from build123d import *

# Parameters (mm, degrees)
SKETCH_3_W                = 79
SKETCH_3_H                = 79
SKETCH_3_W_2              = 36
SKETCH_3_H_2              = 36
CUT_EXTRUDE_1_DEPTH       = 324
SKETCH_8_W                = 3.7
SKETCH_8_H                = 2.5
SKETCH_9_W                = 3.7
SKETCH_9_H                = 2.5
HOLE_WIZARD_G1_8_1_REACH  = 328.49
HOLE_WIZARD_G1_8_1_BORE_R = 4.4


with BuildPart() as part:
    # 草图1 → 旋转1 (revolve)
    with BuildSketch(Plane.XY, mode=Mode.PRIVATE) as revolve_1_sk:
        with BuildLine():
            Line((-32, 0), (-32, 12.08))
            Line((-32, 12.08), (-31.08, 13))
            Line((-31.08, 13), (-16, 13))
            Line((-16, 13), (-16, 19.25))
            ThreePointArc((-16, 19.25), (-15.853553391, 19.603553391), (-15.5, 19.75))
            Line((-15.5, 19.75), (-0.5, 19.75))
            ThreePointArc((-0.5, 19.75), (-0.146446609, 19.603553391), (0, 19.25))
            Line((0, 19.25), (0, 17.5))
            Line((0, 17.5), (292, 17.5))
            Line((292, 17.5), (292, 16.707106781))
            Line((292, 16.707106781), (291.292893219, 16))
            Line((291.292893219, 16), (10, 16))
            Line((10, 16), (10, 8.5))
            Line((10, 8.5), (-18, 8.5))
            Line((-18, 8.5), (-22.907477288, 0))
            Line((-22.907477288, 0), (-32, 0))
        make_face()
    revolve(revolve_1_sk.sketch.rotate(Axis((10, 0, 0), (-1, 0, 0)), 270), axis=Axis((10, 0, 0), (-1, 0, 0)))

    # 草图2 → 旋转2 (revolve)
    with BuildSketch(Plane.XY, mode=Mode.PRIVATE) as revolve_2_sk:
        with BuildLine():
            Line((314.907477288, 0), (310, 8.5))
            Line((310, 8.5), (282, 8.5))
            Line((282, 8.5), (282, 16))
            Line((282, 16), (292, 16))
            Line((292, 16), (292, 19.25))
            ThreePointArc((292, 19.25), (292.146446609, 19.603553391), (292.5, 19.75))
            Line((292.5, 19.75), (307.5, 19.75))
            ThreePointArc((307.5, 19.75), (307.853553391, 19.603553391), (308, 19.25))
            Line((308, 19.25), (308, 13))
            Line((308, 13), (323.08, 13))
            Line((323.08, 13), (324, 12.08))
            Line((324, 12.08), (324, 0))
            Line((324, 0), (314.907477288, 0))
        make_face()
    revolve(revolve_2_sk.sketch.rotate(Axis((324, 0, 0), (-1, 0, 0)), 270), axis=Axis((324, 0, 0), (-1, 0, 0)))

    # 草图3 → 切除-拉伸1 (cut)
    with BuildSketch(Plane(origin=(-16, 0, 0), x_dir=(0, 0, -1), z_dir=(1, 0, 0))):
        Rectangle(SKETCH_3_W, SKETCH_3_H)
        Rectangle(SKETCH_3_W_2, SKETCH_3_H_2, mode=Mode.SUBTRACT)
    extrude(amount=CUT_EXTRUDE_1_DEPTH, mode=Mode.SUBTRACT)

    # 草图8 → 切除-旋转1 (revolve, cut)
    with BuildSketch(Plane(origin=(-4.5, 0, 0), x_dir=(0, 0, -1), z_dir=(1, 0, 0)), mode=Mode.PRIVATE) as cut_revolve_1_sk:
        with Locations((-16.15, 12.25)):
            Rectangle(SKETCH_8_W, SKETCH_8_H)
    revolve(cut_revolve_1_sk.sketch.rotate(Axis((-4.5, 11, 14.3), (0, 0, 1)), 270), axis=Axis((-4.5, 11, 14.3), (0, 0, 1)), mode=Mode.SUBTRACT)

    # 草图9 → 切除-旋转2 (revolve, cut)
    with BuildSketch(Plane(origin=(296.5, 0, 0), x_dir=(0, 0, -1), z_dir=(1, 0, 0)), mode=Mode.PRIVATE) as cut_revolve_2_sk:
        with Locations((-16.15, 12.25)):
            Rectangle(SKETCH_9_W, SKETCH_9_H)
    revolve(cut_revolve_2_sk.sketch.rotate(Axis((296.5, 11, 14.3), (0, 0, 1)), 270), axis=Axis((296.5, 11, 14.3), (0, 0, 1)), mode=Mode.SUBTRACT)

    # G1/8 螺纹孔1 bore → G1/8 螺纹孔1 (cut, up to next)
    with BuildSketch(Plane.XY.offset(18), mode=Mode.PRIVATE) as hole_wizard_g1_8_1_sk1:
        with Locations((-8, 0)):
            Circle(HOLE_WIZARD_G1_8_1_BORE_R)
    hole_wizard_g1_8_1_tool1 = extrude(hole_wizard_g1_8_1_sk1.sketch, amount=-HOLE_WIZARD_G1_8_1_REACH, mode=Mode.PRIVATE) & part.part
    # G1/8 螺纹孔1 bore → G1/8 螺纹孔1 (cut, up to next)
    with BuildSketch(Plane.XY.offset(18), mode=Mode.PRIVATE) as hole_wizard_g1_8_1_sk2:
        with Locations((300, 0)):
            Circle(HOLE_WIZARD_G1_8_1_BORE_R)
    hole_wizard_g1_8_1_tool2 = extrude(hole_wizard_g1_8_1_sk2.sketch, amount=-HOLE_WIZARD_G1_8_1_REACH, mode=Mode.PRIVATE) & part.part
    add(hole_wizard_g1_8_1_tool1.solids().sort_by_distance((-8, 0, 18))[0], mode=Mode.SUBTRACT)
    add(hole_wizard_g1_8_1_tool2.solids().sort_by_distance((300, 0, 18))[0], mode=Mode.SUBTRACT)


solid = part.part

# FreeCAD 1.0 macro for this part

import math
import FreeCAD as App
import Part
import Sketcher
from FreeCAD import Vector
Q = App.Units.Quantity

doc = App.newDocument("Part")
params = doc.addObject("Spreadsheet::Sheet", "Params")
for row, (alias, value) in enumerate([
    ("sketch1_radius", "0.5 mm"),
    ("sketch1_width", "28 mm"),
    ("sketch1_width2", "292 mm"),
    ("sketch1_width3", "15 mm"),
    ("sketch1_length", "1 mm"),
    ("revolution_angle", "360 deg"),
    ("sketch2_radius", "0.5 mm"),
    ("sketch2_width", "15 mm"),
    ("sketch2_width2", "10 mm"),
    ("sketch2_width3", "28 mm"),
    ("sketch2_height", "7.5 mm"),
    ("revolution2_angle", "360 deg"),
    ("sketch3_width", "79 mm"),
    ("sketch3_width2", "36 mm"),
    ("pocket1_length", "324 mm"),
    ("sketch4_width", "2.5 mm"),
    ("sketch4_height", "3.7 mm"),
    ("groove_angle", "360 deg"),
    ("sketch5_width", "2.5 mm"),
    ("sketch5_height", "3.7 mm"),
    ("groove2_angle", "360 deg"),
    ("sketch6_diameter", "8.8 mm"),
    ("sketch7_diameter", "8.8 mm"),
], start=1):
    params.set(f"A{row}", alias)
    params.set(f"B{row}", "=" + value)
    params.setAlias(f"B{row}", alias)

body = doc.addObject("PartDesign::Body", "Body")

# Sketch on XY plane
sketch1 = body.newObject("Sketcher::SketchObject", "Sketch")
sketch1.AttachmentSupport = (doc.getObject("XY_Plane"), [""])
sketch1.MapMode = "FlatFace"
sketch1.addGeometry(Part.LineSegment(Vector(-32, 12.08, 0), Vector(-32, 0, 0)), False)
sketch1.addGeometry(Part.LineSegment(Vector(-32, 0, 0), Vector(-22.91, 0, 0)), False)
sketch1.addGeometry(Part.LineSegment(Vector(-22.91, 0, 0), Vector(-18, 8.5, 0)), False)
sketch1.addGeometry(Part.LineSegment(Vector(-18, 8.5, 0), Vector(10, 8.5, 0)), False)
sketch1.addGeometry(Part.LineSegment(Vector(10, 8.5, 0), Vector(10, 16, 0)), False)
sketch1.addGeometry(Part.LineSegment(Vector(10, 16, 0), Vector(291.29, 16, 0)), False)
sketch1.addGeometry(Part.LineSegment(Vector(291.29, 16, 0), Vector(292, 16.71, 0)), False)
sketch1.addGeometry(Part.LineSegment(Vector(292, 16.71, 0), Vector(292, 17.5, 0)), False)
sketch1.addGeometry(Part.LineSegment(Vector(292, 17.5, 0), Vector(0, 17.5, 0)), False)
sketch1.addGeometry(Part.LineSegment(Vector(0, 17.5, 0), Vector(0, 19.25, 0)), False)
sketch1.addGeometry(Part.ArcOfCircle(Part.Circle(Vector(-0.5, 19.25, 0), Vector(0, 0, 1), 0.5), math.radians(0), math.radians(90)), False)
sketch1.addGeometry(Part.LineSegment(Vector(-0.5, 19.75, 0), Vector(-15.5, 19.75, 0)), False)
sketch1.addGeometry(Part.ArcOfCircle(Part.Circle(Vector(-15.5, 19.25, 0), Vector(0, 0, 1), 0.5), math.radians(90), math.radians(180)), False)
sketch1.addGeometry(Part.LineSegment(Vector(-16, 19.25, 0), Vector(-16, 13, 0)), False)
sketch1.addGeometry(Part.LineSegment(Vector(-16, 13, 0), Vector(-31.08, 13, 0)), False)
sketch1.addGeometry(Part.LineSegment(Vector(-31.08, 13, 0), Vector(-32, 12.08, 0)), False)
sketch1.addConstraint(Sketcher.Constraint("Coincident", 0, 2, 1, 1))
sketch1.addConstraint(Sketcher.Constraint("Coincident", 1, 2, 2, 1))
sketch1.addConstraint(Sketcher.Constraint("Coincident", 2, 2, 3, 1))
sketch1.addConstraint(Sketcher.Constraint("Coincident", 3, 2, 4, 1))
sketch1.addConstraint(Sketcher.Constraint("Coincident", 4, 2, 5, 1))
sketch1.addConstraint(Sketcher.Constraint("Coincident", 5, 2, 6, 1))
sketch1.addConstraint(Sketcher.Constraint("Coincident", 6, 2, 7, 1))
sketch1.addConstraint(Sketcher.Constraint("Coincident", 7, 2, 8, 1))
sketch1.addConstraint(Sketcher.Constraint("Coincident", 8, 2, 9, 1))
sketch1.addConstraint(Sketcher.Constraint("Tangent", 9, 2, 10, 1))
sketch1.addConstraint(Sketcher.Constraint("Tangent", 10, 2, 11, 1))
sketch1.addConstraint(Sketcher.Constraint("Tangent", 11, 2, 12, 1))
sketch1.addConstraint(Sketcher.Constraint("Tangent", 12, 2, 13, 1))
sketch1.addConstraint(Sketcher.Constraint("Coincident", 13, 2, 14, 1))
sketch1.addConstraint(Sketcher.Constraint("Coincident", 14, 2, 15, 1))
sketch1.addConstraint(Sketcher.Constraint("Coincident", 15, 2, 0, 1))
sketch1.addConstraint(Sketcher.Constraint("Vertical", 0))
sketch1.addConstraint(Sketcher.Constraint("Horizontal", 1))
sketch1.addConstraint(Sketcher.Constraint("Horizontal", 3))
sketch1.addConstraint(Sketcher.Constraint("Vertical", 4))
sketch1.addConstraint(Sketcher.Constraint("Horizontal", 5))
sketch1.addConstraint(Sketcher.Constraint("Vertical", 7))
sketch1.addConstraint(Sketcher.Constraint("Horizontal", 8))
sketch1.addConstraint(Sketcher.Constraint("Vertical", 9))
sketch1.addConstraint(Sketcher.Constraint("Horizontal", 11))
sketch1.addConstraint(Sketcher.Constraint("Vertical", 13))
sketch1.addConstraint(Sketcher.Constraint("Horizontal", 14))
sketch1.addConstraint(Sketcher.Constraint("Equal", 10, 12))
sketch1.addConstraint(Sketcher.Constraint("PointOnObject", 0, 2, -1))
sketch1.addConstraint(Sketcher.Constraint("PointOnObject", 8, 2, -2))
sketch1.addConstraint(Sketcher.Constraint("Parallel", 6, 15))
sketch1.addConstraint(Sketcher.Constraint("Radius", 10, 0.5))
sketch1.addConstraint(Sketcher.Constraint("DistanceX", 3, 1, 3, 2, 28.0))
sketch1.addConstraint(Sketcher.Constraint("DistanceX", 8, 2, 8, 1, 292.0))
sketch1.addConstraint(Sketcher.Constraint("DistanceX", 11, 2, 11, 1, 15.0))
sketch1.addConstraint(Sketcher.Constraint("Angle", 2, Q("60 deg")))
sketch1.addConstraint(Sketcher.Constraint("Angle", 6, Q("45 deg")))
sketch1.addConstraint(Sketcher.Constraint("Distance", 6, 1.0))
sketch1.addConstraint(Sketcher.Constraint("DistanceY", 4, 1, 4, 2, 7.5))
sketch1.addConstraint(Sketcher.Constraint("DistanceX", 0, 2, -1, 1, 32.0))
sketch1.addConstraint(Sketcher.Constraint("DistanceX", 2, 2, -1, 1, 18.0))
sketch1.addConstraint(Sketcher.Constraint("DistanceY", -1, 1, 4, 2, 16.0))
sketch1.addConstraint(Sketcher.Constraint("DistanceY", -1, 1, 13, 2, 13.0))
sketch1.addConstraint(Sketcher.Constraint("DistanceY", 3, 2, 7, 2, 9.0))
sketch1.addConstraint(Sketcher.Constraint("DistanceX", 14, 2, 14, 1, 15.08))
sketch1.addConstraint(Sketcher.Constraint("DistanceY", 9, 1, 9, 2, 1.75))
sketch1.setExpression("Constraints[31]", "Params.sketch1_radius")
sketch1.setExpression("Constraints[32]", "Params.sketch1_width")
sketch1.setExpression("Constraints[33]", "Params.sketch1_width2")
sketch1.setExpression("Constraints[34]", "Params.sketch1_width3")
sketch1.setExpression("Constraints[37]", "Params.sketch1_length")
revolution = body.newObject("PartDesign::Revolution", "Revolution")
revolution.Profile = sketch1
revolution.ReferenceAxis = (sketch1, ["H_Axis"])
revolution.setExpression("Angle", "Params.revolution_angle")

# Sketch on XY plane
sketch2 = body.newObject("Sketcher::SketchObject", "Sketch001")
sketch2.AttachmentSupport = (doc.getObject("XY_Plane"), [""])
sketch2.MapMode = "FlatFace"
sketch2.addGeometry(Part.LineSegment(Vector(310, 8.5, 0), Vector(314.91, 0, 0)), False)
sketch2.addGeometry(Part.LineSegment(Vector(314.91, 0, 0), Vector(324, 0, 0)), False)
sketch2.addGeometry(Part.LineSegment(Vector(324, 0, 0), Vector(324, 12.08, 0)), False)
sketch2.addGeometry(Part.LineSegment(Vector(324, 12.08, 0), Vector(323.08, 13, 0)), False)
sketch2.addGeometry(Part.LineSegment(Vector(323.08, 13, 0), Vector(308, 13, 0)), False)
sketch2.addGeometry(Part.LineSegment(Vector(308, 13, 0), Vector(308, 19.25, 0)), False)
sketch2.addGeometry(Part.ArcOfCircle(Part.Circle(Vector(307.5, 19.25, 0), Vector(0, 0, 1), 0.5), math.radians(0), math.radians(90)), False)
sketch2.addGeometry(Part.LineSegment(Vector(307.5, 19.75, 0), Vector(292.5, 19.75, 0)), False)
sketch2.addGeometry(Part.ArcOfCircle(Part.Circle(Vector(292.5, 19.25, 0), Vector(0, 0, 1), 0.5), math.radians(90), math.radians(180)), False)
sketch2.addGeometry(Part.LineSegment(Vector(292, 19.25, 0), Vector(292, 16, 0)), False)
sketch2.addGeometry(Part.LineSegment(Vector(292, 16, 0), Vector(282, 16, 0)), False)
sketch2.addGeometry(Part.LineSegment(Vector(282, 16, 0), Vector(282, 8.5, 0)), False)
sketch2.addGeometry(Part.LineSegment(Vector(282, 8.5, 0), Vector(310, 8.5, 0)), False)
sketch2.addConstraint(Sketcher.Constraint("Coincident", 0, 2, 1, 1))
sketch2.addConstraint(Sketcher.Constraint("Coincident", 1, 2, 2, 1))
sketch2.addConstraint(Sketcher.Constraint("Coincident", 2, 2, 3, 1))
sketch2.addConstraint(Sketcher.Constraint("Coincident", 3, 2, 4, 1))
sketch2.addConstraint(Sketcher.Constraint("Coincident", 4, 2, 5, 1))
sketch2.addConstraint(Sketcher.Constraint("Tangent", 5, 2, 6, 1))
sketch2.addConstraint(Sketcher.Constraint("Tangent", 6, 2, 7, 1))
sketch2.addConstraint(Sketcher.Constraint("Tangent", 7, 2, 8, 1))
sketch2.addConstraint(Sketcher.Constraint("Tangent", 8, 2, 9, 1))
sketch2.addConstraint(Sketcher.Constraint("Coincident", 9, 2, 10, 1))
sketch2.addConstraint(Sketcher.Constraint("Coincident", 10, 2, 11, 1))
sketch2.addConstraint(Sketcher.Constraint("Coincident", 11, 2, 12, 1))
sketch2.addConstraint(Sketcher.Constraint("Coincident", 12, 2, 0, 1))
sketch2.addConstraint(Sketcher.Constraint("Horizontal", 1))
sketch2.addConstraint(Sketcher.Constraint("Vertical", 2))
sketch2.addConstraint(Sketcher.Constraint("Horizontal", 4))
sketch2.addConstraint(Sketcher.Constraint("Vertical", 5))
sketch2.addConstraint(Sketcher.Constraint("Horizontal", 7))
sketch2.addConstraint(Sketcher.Constraint("Vertical", 9))
sketch2.addConstraint(Sketcher.Constraint("Horizontal", 10))
sketch2.addConstraint(Sketcher.Constraint("Vertical", 11))
sketch2.addConstraint(Sketcher.Constraint("Horizontal", 12))
sketch2.addConstraint(Sketcher.Constraint("Equal", 6, 8))
sketch2.addConstraint(Sketcher.Constraint("PointOnObject", 0, 2, -1))
sketch2.addConstraint(Sketcher.Constraint("Radius", 6, 0.5))
sketch2.addConstraint(Sketcher.Constraint("DistanceX", 7, 2, 7, 1, 15.0))
sketch2.addConstraint(Sketcher.Constraint("DistanceX", 10, 2, 10, 1, 10.0))
sketch2.addConstraint(Sketcher.Constraint("DistanceX", 12, 1, 12, 2, 28.0))
sketch2.addConstraint(Sketcher.Constraint("Angle", 0, Q("-60 deg")))
sketch2.addConstraint(Sketcher.Constraint("Angle", 3, Q("135 deg")))
sketch2.addConstraint(Sketcher.Constraint("DistanceY", 11, 2, 11, 1, 7.5))
sketch2.addConstraint(Sketcher.Constraint("DistanceX", -1, 1, 1, 2, 324.0))
sketch2.addConstraint(Sketcher.Constraint("DistanceY", -1, 1, 3, 2, 13.0))
sketch2.addConstraint(Sketcher.Constraint("DistanceX", -1, 1, 4, 2, 308.0))
sketch2.addConstraint(Sketcher.Constraint("DistanceY", -1, 1, 9, 2, 16.0))
sketch2.addConstraint(Sketcher.Constraint("DistanceX", 4, 2, 4, 1, 15.08))
sketch2.addConstraint(Sketcher.Constraint("DistanceY", 5, 1, 5, 2, 6.25))
sketch2.setExpression("Constraints[24]", "Params.sketch2_radius")
sketch2.setExpression("Constraints[25]", "Params.sketch2_width")
sketch2.setExpression("Constraints[26]", "Params.sketch2_width2")
sketch2.setExpression("Constraints[27]", "Params.sketch2_width3")
sketch2.setExpression("Constraints[30]", "Params.sketch2_height")
revolution2 = body.newObject("PartDesign::Revolution", "Revolution001")
revolution2.Profile = sketch2
revolution2.ReferenceAxis = (sketch2, ["H_Axis"])
revolution2.setExpression("Angle", "Params.revolution2_angle")

# Sketch on YZ plane
sketch3 = body.newObject("Sketcher::SketchObject", "Sketch002")
sketch3.AttachmentSupport = (doc.getObject("YZ_Plane"), [""])
sketch3.MapMode = "FlatFace"
sketch3.AttachmentOffset = App.Placement(Vector(0, 0, -16), App.Rotation())
sketch3.addGeometry(Part.LineSegment(Vector(40, 40, 0), Vector(-40, 40, 0)), False)
sketch3.addGeometry(Part.LineSegment(Vector(-40, 40, 0), Vector(-40, -40, 0)), False)
sketch3.addGeometry(Part.LineSegment(Vector(-40, -40, 0), Vector(40, -40, 0)), False)
sketch3.addGeometry(Part.LineSegment(Vector(40, -40, 0), Vector(40, 40, 0)), False)
sketch3.addGeometry(Part.LineSegment(Vector(-18, -18, 0), Vector(-18, 18, 0)), False)
sketch3.addGeometry(Part.LineSegment(Vector(-18, 18, 0), Vector(18, 18, 0)), False)
sketch3.addGeometry(Part.LineSegment(Vector(18, 18, 0), Vector(18, -18, 0)), False)
sketch3.addGeometry(Part.LineSegment(Vector(18, -18, 0), Vector(-18, -18, 0)), False)
sketch3.addConstraint(Sketcher.Constraint("Coincident", 0, 2, 1, 1))
sketch3.addConstraint(Sketcher.Constraint("Coincident", 1, 2, 2, 1))
sketch3.addConstraint(Sketcher.Constraint("Coincident", 2, 2, 3, 1))
sketch3.addConstraint(Sketcher.Constraint("Coincident", 3, 2, 0, 1))
sketch3.addConstraint(Sketcher.Constraint("Coincident", 4, 2, 5, 1))
sketch3.addConstraint(Sketcher.Constraint("Coincident", 5, 2, 6, 1))
sketch3.addConstraint(Sketcher.Constraint("Coincident", 6, 2, 7, 1))
sketch3.addConstraint(Sketcher.Constraint("Coincident", 7, 2, 4, 1))
sketch3.addConstraint(Sketcher.Constraint("Horizontal", 0))
sketch3.addConstraint(Sketcher.Constraint("Vertical", 1))
sketch3.addConstraint(Sketcher.Constraint("Horizontal", 2))
sketch3.addConstraint(Sketcher.Constraint("Vertical", 3))
sketch3.addConstraint(Sketcher.Constraint("Vertical", 4))
sketch3.addConstraint(Sketcher.Constraint("Horizontal", 5))
sketch3.addConstraint(Sketcher.Constraint("Vertical", 6))
sketch3.addConstraint(Sketcher.Constraint("Horizontal", 7))
sketch3.addConstraint(Sketcher.Constraint("Symmetric", 0, 2, 2, 2, -1, 1))
sketch3.addConstraint(Sketcher.Constraint("Symmetric", 4, 2, 6, 2, -1, 1))
sketch3.addConstraint(Sketcher.Constraint("Equal", 2, 1))
sketch3.addConstraint(Sketcher.Constraint("Equal", 7, 4))
sketch3.addConstraint(Sketcher.Constraint("DistanceX", 0, 2, 0, 1, 79.0))
sketch3.addConstraint(Sketcher.Constraint("DistanceX", 5, 1, 5, 2, 36.0))
sketch3.setExpression("Constraints[20]", "Params.sketch3_width")
sketch3.setExpression("Constraints[21]", "Params.sketch3_width2")
pocket1 = body.newObject("PartDesign::Pocket", "Pocket")
pocket1.Profile = sketch3
pocket1.setExpression("Length", "Params.pocket1_length")
pocket1.Reversed = True

# Sketch on YZ plane
sketch4 = body.newObject("Sketcher::SketchObject", "Sketch003")
sketch4.AttachmentSupport = (doc.getObject("YZ_Plane"), [""])
sketch4.MapMode = "FlatFace"
sketch4.AttachmentOffset = App.Placement(Vector(0, 0, -4.5), App.Rotation())
sketch4.addGeometry(Part.LineSegment(Vector(13.5, 18, 0), Vector(11, 18, 0)), False)
sketch4.addGeometry(Part.LineSegment(Vector(11, 18, 0), Vector(11, 14.3, 0)), False)
sketch4.addGeometry(Part.LineSegment(Vector(11, 14.3, 0), Vector(13.5, 14.3, 0)), False)
sketch4.addGeometry(Part.LineSegment(Vector(13.5, 14.3, 0), Vector(13.5, 18, 0)), False)
sketch4.addGeometry(Part.LineSegment(Vector(11, 14.3, 0), Vector(11, 18, 0)), True)  # axis
sketch4.addConstraint(Sketcher.Constraint("Coincident", 0, 2, 1, 1))
sketch4.addConstraint(Sketcher.Constraint("Coincident", 1, 2, 2, 1))
sketch4.addConstraint(Sketcher.Constraint("Coincident", 2, 2, 3, 1))
sketch4.addConstraint(Sketcher.Constraint("Coincident", 3, 2, 0, 1))
sketch4.addConstraint(Sketcher.Constraint("Horizontal", 0))
sketch4.addConstraint(Sketcher.Constraint("Vertical", 1))
sketch4.addConstraint(Sketcher.Constraint("Horizontal", 2))
sketch4.addConstraint(Sketcher.Constraint("Vertical", 3))
sketch4.addConstraint(Sketcher.Constraint("Vertical", 4))
sketch4.addConstraint(Sketcher.Constraint("Coincident", 4, 1, 1, 2))
sketch4.addConstraint(Sketcher.Constraint("Horizontal", 3, 2, 4, 2))
sketch4.addConstraint(Sketcher.Constraint("DistanceX", 0, 2, 0, 1, 2.5))
sketch4.addConstraint(Sketcher.Constraint("DistanceY", 1, 2, 1, 1, 3.7))
sketch4.addConstraint(Sketcher.Constraint("DistanceX", -1, 1, 0, 2, 11.0))
sketch4.addConstraint(Sketcher.Constraint("DistanceY", -1, 1, 0, 2, 18.0))
sketch4.setExpression("Constraints[11]", "Params.sketch4_width")
sketch4.setExpression("Constraints[12]", "Params.sketch4_height")
groove = body.newObject("PartDesign::Groove", "Groove")
groove.Profile = sketch4
groove.ReferenceAxis = (sketch4, ["Axis0"])
groove.setExpression("Angle", "Params.groove_angle")

# Sketch on YZ plane
sketch5 = body.newObject("Sketcher::SketchObject", "Sketch004")
sketch5.AttachmentSupport = (doc.getObject("YZ_Plane"), [""])
sketch5.MapMode = "FlatFace"
sketch5.AttachmentOffset = App.Placement(Vector(0, 0, 296.5), App.Rotation())
sketch5.addGeometry(Part.LineSegment(Vector(13.5, 18, 0), Vector(11, 18, 0)), False)
sketch5.addGeometry(Part.LineSegment(Vector(11, 18, 0), Vector(11, 14.3, 0)), False)
sketch5.addGeometry(Part.LineSegment(Vector(11, 14.3, 0), Vector(13.5, 14.3, 0)), False)
sketch5.addGeometry(Part.LineSegment(Vector(13.5, 14.3, 0), Vector(13.5, 18, 0)), False)
sketch5.addGeometry(Part.LineSegment(Vector(11, 14.3, 0), Vector(11, 18, 0)), True)  # axis
sketch5.addConstraint(Sketcher.Constraint("Coincident", 0, 2, 1, 1))
sketch5.addConstraint(Sketcher.Constraint("Coincident", 1, 2, 2, 1))
sketch5.addConstraint(Sketcher.Constraint("Coincident", 2, 2, 3, 1))
sketch5.addConstraint(Sketcher.Constraint("Coincident", 3, 2, 0, 1))
sketch5.addConstraint(Sketcher.Constraint("Horizontal", 0))
sketch5.addConstraint(Sketcher.Constraint("Vertical", 1))
sketch5.addConstraint(Sketcher.Constraint("Horizontal", 2))
sketch5.addConstraint(Sketcher.Constraint("Vertical", 3))
sketch5.addConstraint(Sketcher.Constraint("Vertical", 4))
sketch5.addConstraint(Sketcher.Constraint("Coincident", 4, 1, 1, 2))
sketch5.addConstraint(Sketcher.Constraint("Horizontal", 3, 2, 4, 2))
sketch5.addConstraint(Sketcher.Constraint("DistanceX", 0, 2, 0, 1, 2.5))
sketch5.addConstraint(Sketcher.Constraint("DistanceY", 1, 2, 1, 1, 3.7))
sketch5.addConstraint(Sketcher.Constraint("DistanceX", -1, 1, 0, 2, 11.0))
sketch5.addConstraint(Sketcher.Constraint("DistanceY", -1, 1, 0, 2, 18.0))
sketch5.setExpression("Constraints[11]", "Params.sketch5_width")
sketch5.setExpression("Constraints[12]", "Params.sketch5_height")
groove2 = body.newObject("PartDesign::Groove", "Groove001")
groove2.Profile = sketch5
groove2.ReferenceAxis = (sketch5, ["Axis0"])
groove2.setExpression("Angle", "Params.groove2_angle")

# Sketch on XY plane
sketch6 = body.newObject("Sketcher::SketchObject", "Sketch005")
sketch6.AttachmentSupport = (doc.getObject("XY_Plane"), [""])
sketch6.MapMode = "FlatFace"
sketch6.AttachmentOffset = App.Placement(Vector(0, 0, 18), App.Rotation())
sketch6.addGeometry(Part.Circle(Vector(-8, 0, 0), Vector(0, 0, 1), 4.4), False)
sketch6.addConstraint(Sketcher.Constraint("PointOnObject", 0, 3, -1))
sketch6.addConstraint(Sketcher.Constraint("Diameter", 0, 8.8))
sketch6.addConstraint(Sketcher.Constraint("DistanceX", 0, 3, -1, 1, 8.0))
sketch6.setExpression("Constraints[1]", "Params.sketch6_diameter")
pocket2 = body.newObject("PartDesign::Pocket", "Pocket001")
pocket2.Profile = sketch6
pocket2.Type = "UpToFirst"

# Sketch on XY plane
sketch7 = body.newObject("Sketcher::SketchObject", "Sketch006")
sketch7.AttachmentSupport = (doc.getObject("XY_Plane"), [""])
sketch7.MapMode = "FlatFace"
sketch7.AttachmentOffset = App.Placement(Vector(0, 0, 18), App.Rotation())
sketch7.addGeometry(Part.Circle(Vector(300, 0, 0), Vector(0, 0, 1), 4.4), False)
sketch7.addConstraint(Sketcher.Constraint("PointOnObject", 0, 3, -1))
sketch7.addConstraint(Sketcher.Constraint("Diameter", 0, 8.8))
sketch7.addConstraint(Sketcher.Constraint("DistanceX", -1, 1, 0, 3, 300.0))
sketch7.setExpression("Constraints[1]", "Params.sketch7_diameter")
pocket3 = body.newObject("PartDesign::Pocket", "Pocket002")
pocket3.Profile = sketch7
pocket3.Type = "UpToFirst"

doc.recompute()
